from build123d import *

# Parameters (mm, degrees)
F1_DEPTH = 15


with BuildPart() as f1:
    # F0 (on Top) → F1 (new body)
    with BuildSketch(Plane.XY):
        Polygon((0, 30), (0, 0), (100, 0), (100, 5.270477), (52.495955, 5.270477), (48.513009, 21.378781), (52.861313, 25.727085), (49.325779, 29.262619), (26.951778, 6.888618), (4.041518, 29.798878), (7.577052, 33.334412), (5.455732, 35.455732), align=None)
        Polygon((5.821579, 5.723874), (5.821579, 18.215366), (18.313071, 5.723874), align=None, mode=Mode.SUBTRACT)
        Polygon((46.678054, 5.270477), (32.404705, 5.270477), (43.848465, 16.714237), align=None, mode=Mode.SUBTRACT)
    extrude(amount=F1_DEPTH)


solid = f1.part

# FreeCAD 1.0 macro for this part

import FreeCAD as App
import Part
import Sketcher
from FreeCAD import Vector
Q = App.Units.Quantity


def add_polygon(sketch, points):
    """Adds a closed chain of lines whose ends are joined by coincident constraints."""
    first, n = sketch.GeometryCount, len(points)
    for a, b in zip(points, points[1:] + points[:1]):
        sketch.addGeometry(Part.LineSegment(App.Vector(*a, 0), App.Vector(*b, 0)), False)
    for i in range(n):
        sketch.addConstraint(Sketcher.Constraint("Coincident", first + i, 2, first + (i + 1) % n, 1))

doc = App.newDocument("Part")
params = doc.addObject("Spreadsheet::Sheet", "Params")
for row, (alias, value) in enumerate([
    ("sketch1_width", "100 mm"),
    ("sketch1_height", "30 mm"),
    ("sketch1_length", "5 mm"),
    ("sketch1_length2", "3 mm"),
    ("sketch1_length3", "32.4 mm"),
    ("pad1_length", "15 mm"),
], start=1):
    params.set(f"A{row}", alias)
    params.set(f"B{row}", "=" + value)
    params.setAlias(f"B{row}", alias)

body = doc.addObject("PartDesign::Body", "Body")

sketch1 = body.newObject("Sketcher::SketchObject", "Sketch")
sketch1.AttachmentSupport = (doc.getObject("XY_Plane"), [""])
sketch1.MapMode = "FlatFace"
add_polygon(sketch1, [(0, 30), (0, 0), (100, 0), (100, 5.3), (52.5, 5.3), (48.5, 21.4), (52.9, 25.7), (49.3, 29.3), (27, 6.9), (4, 29.8), (7.6, 33.3), (5.5, 35.5)])
add_polygon(sketch1, [(43.8, 16.7), (46.7, 5.3), (32.4, 5.3)])
add_polygon(sketch1, [(18.3, 5.7), (5.8, 5.7), (5.8, 18.2)])
sketch1.addConstraint([
    Sketcher.Constraint("Vertical", 0),
    Sketcher.Constraint("Horizontal", 1),
    Sketcher.Constraint("Vertical", 2),
    Sketcher.Constraint("Horizontal", 3),
    Sketcher.Constraint("Horizontal", 13),
    Sketcher.Constraint("Horizontal", 15),
    Sketcher.Constraint("Vertical", 16),
    Sketcher.Constraint("Coincident", 0, 2, -1, 1),
    Sketcher.Constraint("Perpendicular", 5, 6),
    Sketcher.Constraint("Perpendicular", 6, 7),
    Sketcher.Constraint("Perpendicular", 7, 8),
    Sketcher.Constraint("Perpendicular", 8, 9),
    Sketcher.Constraint("Perpendicular", 9, 10),
    Sketcher.Constraint("Perpendicular", 10, 11),
    Sketcher.Constraint("Parallel", 4, 12),
    Sketcher.Constraint("Parallel", 11, 14),
    Sketcher.Constraint("Perpendicular", 14, 17),
    Sketcher.Constraint("Horizontal", 3, 2, 12, 2),
    Sketcher.Constraint("Equal", 15, 16),
    Sketcher.Constraint("Equal", 6, 9),
    Sketcher.Constraint("DistanceX", 1, 1, 1, 2, Q("100 mm")),
    Sketcher.Constraint("DistanceY", 0, 2, 0, 1, Q("30 mm")),
    Sketcher.Constraint("Distance", 6, Q("5 mm")),
    Sketcher.Constraint("Distance", 10, Q("3 mm")),
    Sketcher.Constraint("Distance", 8, Q("32.4 mm")),
    Sketcher.Constraint("DistanceX", 7, 2, 6, 2, Q("22.374001 mm")),
    Sketcher.Constraint("DistanceX", 13, 2, 13, 1, Q("14.273349 mm")),
    Sketcher.Constraint("DistanceY", 16, 1, 16, 2, Q("12.491492 mm")),
    Sketcher.Constraint("DistanceX", 12, 2, 3, 2, Q("5.817901 mm")),
    Sketcher.Constraint("DistanceX", 15, 2, 7, 2, Q("21.130199 mm")),
    Sketcher.Constraint("Distance", 4, Q("16.593412 mm")),
    Sketcher.Constraint("Distance", 5, Q("6.14943 mm")),
    Sketcher.Constraint("Distance", 11, Q("7.71557 mm")),
    Sketcher.Constraint("Distance", 14, Q("16.183921 mm")),
    Sketcher.Constraint("DistanceY", 16, 2, 8, 2, Q("11.583512 mm")),
])
sketch1.setExpression("Constraints[38]", "Params.sketch1_width")
sketch1.setExpression("Constraints[39]", "Params.sketch1_height")
sketch1.setExpression("Constraints[40]", "Params.sketch1_length")
sketch1.setExpression("Constraints[41]", "Params.sketch1_length2")
sketch1.setExpression("Constraints[42]", "Params.sketch1_length3")
pad1 = body.newObject("PartDesign::Pad", "Pad")
pad1.Profile = sketch1
pad1.setExpression("Length", "Params.pad1_length")

doc.recompute()
